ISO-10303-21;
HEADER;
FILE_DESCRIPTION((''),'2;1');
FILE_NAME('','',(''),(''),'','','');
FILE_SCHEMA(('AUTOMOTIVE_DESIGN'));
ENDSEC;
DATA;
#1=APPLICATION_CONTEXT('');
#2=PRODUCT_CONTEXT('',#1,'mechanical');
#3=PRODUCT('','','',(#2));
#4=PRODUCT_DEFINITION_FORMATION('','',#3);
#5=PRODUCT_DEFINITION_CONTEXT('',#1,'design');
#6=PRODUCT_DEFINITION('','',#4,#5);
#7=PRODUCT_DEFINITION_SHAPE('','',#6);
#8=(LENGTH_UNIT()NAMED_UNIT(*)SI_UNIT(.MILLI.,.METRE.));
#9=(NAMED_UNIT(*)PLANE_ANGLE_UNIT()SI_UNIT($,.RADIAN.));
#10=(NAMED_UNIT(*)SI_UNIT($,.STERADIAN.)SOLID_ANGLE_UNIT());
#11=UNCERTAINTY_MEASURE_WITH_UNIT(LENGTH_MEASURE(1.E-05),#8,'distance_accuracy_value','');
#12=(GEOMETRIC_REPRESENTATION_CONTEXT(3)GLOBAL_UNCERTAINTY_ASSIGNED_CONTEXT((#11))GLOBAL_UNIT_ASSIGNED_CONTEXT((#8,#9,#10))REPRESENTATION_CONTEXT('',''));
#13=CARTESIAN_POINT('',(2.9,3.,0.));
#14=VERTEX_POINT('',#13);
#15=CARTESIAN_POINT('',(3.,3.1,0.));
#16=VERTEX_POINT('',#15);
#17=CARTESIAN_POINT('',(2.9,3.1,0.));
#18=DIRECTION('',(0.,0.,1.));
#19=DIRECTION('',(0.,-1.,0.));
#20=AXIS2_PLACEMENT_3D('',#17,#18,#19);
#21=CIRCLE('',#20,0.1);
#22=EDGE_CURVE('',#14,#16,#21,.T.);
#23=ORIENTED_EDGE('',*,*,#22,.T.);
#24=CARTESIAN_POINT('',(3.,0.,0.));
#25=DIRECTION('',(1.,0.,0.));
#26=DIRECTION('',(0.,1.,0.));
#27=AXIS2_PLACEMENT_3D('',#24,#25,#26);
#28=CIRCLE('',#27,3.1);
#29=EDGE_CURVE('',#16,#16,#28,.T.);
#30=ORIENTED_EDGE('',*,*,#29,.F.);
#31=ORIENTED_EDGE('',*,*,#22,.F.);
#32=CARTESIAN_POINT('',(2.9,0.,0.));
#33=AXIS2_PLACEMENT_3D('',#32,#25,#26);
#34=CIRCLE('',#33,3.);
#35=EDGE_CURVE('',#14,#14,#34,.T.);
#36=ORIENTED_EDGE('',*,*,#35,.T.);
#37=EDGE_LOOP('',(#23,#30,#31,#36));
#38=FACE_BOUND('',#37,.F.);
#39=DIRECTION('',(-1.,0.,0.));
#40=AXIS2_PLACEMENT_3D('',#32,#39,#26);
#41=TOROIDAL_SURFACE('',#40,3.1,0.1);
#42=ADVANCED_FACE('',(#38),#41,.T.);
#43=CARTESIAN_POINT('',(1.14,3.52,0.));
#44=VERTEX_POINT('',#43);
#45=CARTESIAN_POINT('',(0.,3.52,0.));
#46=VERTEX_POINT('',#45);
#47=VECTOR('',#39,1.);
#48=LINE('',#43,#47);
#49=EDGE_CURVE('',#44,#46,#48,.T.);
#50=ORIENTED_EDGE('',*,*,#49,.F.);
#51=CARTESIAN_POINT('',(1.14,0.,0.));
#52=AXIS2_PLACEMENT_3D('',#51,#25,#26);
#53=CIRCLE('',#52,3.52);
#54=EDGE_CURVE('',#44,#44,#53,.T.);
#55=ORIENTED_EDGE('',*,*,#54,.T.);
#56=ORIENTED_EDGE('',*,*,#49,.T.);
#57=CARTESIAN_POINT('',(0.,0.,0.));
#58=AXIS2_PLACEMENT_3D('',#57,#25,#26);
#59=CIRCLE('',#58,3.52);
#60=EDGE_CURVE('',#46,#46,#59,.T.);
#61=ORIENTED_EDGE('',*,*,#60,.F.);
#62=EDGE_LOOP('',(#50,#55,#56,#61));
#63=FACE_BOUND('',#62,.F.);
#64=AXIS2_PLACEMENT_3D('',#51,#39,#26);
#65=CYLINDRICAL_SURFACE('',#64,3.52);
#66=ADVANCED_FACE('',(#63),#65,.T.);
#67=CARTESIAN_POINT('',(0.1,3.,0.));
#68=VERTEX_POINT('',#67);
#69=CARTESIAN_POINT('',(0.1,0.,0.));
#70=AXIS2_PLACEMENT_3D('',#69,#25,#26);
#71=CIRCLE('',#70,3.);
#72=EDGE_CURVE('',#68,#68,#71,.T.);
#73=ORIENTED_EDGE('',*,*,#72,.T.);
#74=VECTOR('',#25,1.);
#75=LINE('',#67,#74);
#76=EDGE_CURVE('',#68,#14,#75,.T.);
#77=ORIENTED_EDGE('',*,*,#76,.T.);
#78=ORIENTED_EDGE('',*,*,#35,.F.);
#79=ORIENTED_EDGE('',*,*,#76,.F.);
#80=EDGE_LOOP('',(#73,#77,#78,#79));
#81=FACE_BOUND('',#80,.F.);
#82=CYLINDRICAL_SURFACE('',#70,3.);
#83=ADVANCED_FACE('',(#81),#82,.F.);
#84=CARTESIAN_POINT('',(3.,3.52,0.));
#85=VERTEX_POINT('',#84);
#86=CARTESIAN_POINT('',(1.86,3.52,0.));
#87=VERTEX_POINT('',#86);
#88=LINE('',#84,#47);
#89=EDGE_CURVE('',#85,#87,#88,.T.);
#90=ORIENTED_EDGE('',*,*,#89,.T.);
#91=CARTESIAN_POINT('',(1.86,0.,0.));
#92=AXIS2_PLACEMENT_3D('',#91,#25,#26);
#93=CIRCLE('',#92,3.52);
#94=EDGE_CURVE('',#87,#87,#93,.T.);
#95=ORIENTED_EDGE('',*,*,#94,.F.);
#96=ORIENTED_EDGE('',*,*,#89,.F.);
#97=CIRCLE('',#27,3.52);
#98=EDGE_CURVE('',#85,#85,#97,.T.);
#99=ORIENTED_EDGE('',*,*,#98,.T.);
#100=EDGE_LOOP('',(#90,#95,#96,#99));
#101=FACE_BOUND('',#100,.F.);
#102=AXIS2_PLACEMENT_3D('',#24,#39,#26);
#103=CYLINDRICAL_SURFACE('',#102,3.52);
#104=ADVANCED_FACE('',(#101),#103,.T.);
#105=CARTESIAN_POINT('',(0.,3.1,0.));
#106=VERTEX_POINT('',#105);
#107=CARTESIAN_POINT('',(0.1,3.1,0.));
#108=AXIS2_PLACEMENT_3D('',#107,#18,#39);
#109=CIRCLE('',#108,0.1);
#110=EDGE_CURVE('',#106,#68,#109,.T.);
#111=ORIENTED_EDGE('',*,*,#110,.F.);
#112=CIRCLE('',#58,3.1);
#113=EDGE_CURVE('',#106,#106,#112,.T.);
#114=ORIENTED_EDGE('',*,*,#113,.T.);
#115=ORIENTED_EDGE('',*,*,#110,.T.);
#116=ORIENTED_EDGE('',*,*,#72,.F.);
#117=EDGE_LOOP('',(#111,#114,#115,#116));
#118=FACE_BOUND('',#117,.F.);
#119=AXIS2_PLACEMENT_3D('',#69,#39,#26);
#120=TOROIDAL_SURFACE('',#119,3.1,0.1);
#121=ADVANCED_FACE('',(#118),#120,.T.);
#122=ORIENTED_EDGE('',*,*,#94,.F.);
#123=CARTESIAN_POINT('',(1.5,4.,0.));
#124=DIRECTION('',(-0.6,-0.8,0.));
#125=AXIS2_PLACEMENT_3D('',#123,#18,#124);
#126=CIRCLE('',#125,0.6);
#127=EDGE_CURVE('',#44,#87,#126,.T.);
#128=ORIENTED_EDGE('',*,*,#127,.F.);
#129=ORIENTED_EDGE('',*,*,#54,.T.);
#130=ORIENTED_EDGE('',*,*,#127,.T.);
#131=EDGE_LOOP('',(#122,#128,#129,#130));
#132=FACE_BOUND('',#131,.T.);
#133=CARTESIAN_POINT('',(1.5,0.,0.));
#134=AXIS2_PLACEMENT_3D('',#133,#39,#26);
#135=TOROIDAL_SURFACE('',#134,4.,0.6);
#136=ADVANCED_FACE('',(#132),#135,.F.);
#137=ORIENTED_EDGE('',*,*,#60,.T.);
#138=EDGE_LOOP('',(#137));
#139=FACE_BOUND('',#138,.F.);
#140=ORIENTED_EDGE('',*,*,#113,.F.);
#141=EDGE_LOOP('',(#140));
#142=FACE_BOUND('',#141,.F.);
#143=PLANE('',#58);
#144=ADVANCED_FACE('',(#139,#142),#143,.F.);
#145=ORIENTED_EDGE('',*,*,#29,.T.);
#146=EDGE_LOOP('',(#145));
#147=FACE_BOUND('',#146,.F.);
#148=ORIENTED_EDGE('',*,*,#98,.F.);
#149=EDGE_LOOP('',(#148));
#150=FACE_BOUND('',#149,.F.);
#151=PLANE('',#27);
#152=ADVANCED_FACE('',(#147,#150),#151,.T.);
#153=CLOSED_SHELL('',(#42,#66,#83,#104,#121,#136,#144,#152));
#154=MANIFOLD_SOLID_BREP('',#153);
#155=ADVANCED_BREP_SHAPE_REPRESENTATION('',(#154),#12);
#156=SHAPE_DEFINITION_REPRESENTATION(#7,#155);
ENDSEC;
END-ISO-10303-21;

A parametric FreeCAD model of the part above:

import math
import FreeCAD as App
import Part
import Sketcher
from FreeCAD import Vector
Q = App.Units.Quantity

doc = App.newDocument("Part")
body = doc.addObject("PartDesign::Body", "Body")

# Sketch on XY plane
sketch1 = body.newObject("Sketcher::SketchObject", "Sketch")
sketch1.AttachmentSupport = (doc.getObject("XY_Plane"), [""])
sketch1.MapMode = "FlatFace"
sketch1.addGeometry([
    Part.LineSegment(Vector(0, 3.52, 0), Vector(0, 3.1, 0)),  # 0
    Part.ArcOfCircle(Part.Circle(Vector(0.1, 3.1, 0), Vector(0, 0, 1), 0.1), math.radians(180), math.radians(270)),  # 1
    Part.LineSegment(Vector(0.1, 3, 0), Vector(2.9, 3, 0)),  # 2
    Part.ArcOfCircle(Part.Circle(Vector(2.9, 3.1, 0), Vector(0, 0, 1), 0.1), math.radians(-90), math.radians(0)),  # 3
    Part.LineSegment(Vector(3, 3.1, 0), Vector(3, 3.52, 0)),  # 4
    Part.LineSegment(Vector(3, 3.52, 0), Vector(1.86, 3.52, 0)),  # 5
    Part.ArcOfCircle(Part.Circle(Vector(1.5, 4, 0), Vector(0, 0, 1), 0.6), math.radians(-126.869898), math.radians(-53.130102)),  # 6
    Part.LineSegment(Vector(1.14, 3.52, 0), Vector(0, 3.52, 0)),  # 7
], False)
sketch1.addConstraint([
    Sketcher.Constraint("Tangent", 0, 2, 1, 1),
    Sketcher.Constraint("Tangent", 1, 2, 2, 1),
    Sketcher.Constraint("Tangent", 2, 2, 3, 1),
    Sketcher.Constraint("Tangent", 3, 2, 4, 1),
    Sketcher.Constraint("Coincident", 4, 2, 5, 1),
    Sketcher.Constraint("Coincident", 5, 2, 6, 2),
    Sketcher.Constraint("Coincident", 6, 1, 7, 1),
    Sketcher.Constraint("Coincident", 7, 2, 0, 1),
    Sketcher.Constraint("Vertical", 0),
    Sketcher.Constraint("Horizontal", 2),
    Sketcher.Constraint("Vertical", 4),
    Sketcher.Constraint("Horizontal", 5),
    Sketcher.Constraint("Horizontal", 7),
    Sketcher.Constraint("Equal", 1, 3),
    Sketcher.Constraint("PointOnObject", 0, 2, -2),
    Sketcher.Constraint("Horizontal", 5, 2, 6, 1),
    Sketcher.Constraint("Equal", 5, 7),
    Sketcher.Constraint("Radius", 1, Q("0.1 mm")),
    Sketcher.Constraint("Radius", 6, Q("0.6 mm")),
    Sketcher.Constraint("DistanceX", 2, 1, 2, 2, Q("2.8 mm")),
    Sketcher.Constraint("DistanceY", -1, 1, 6, 3, Q("4 mm")),
    Sketcher.Constraint("DistanceY", -1, 1, 1, 2, Q("3 mm")),
    Sketcher.Constraint("DistanceX", 5, 2, 5, 1, Q("1.14 mm")),
])
revolution = body.newObject("PartDesign::Revolution", "Revolution")
revolution.Profile = sketch1
revolution.ReferenceAxis = (sketch1, ["H_Axis"])
revolution.Angle = 360

doc.recompute()
